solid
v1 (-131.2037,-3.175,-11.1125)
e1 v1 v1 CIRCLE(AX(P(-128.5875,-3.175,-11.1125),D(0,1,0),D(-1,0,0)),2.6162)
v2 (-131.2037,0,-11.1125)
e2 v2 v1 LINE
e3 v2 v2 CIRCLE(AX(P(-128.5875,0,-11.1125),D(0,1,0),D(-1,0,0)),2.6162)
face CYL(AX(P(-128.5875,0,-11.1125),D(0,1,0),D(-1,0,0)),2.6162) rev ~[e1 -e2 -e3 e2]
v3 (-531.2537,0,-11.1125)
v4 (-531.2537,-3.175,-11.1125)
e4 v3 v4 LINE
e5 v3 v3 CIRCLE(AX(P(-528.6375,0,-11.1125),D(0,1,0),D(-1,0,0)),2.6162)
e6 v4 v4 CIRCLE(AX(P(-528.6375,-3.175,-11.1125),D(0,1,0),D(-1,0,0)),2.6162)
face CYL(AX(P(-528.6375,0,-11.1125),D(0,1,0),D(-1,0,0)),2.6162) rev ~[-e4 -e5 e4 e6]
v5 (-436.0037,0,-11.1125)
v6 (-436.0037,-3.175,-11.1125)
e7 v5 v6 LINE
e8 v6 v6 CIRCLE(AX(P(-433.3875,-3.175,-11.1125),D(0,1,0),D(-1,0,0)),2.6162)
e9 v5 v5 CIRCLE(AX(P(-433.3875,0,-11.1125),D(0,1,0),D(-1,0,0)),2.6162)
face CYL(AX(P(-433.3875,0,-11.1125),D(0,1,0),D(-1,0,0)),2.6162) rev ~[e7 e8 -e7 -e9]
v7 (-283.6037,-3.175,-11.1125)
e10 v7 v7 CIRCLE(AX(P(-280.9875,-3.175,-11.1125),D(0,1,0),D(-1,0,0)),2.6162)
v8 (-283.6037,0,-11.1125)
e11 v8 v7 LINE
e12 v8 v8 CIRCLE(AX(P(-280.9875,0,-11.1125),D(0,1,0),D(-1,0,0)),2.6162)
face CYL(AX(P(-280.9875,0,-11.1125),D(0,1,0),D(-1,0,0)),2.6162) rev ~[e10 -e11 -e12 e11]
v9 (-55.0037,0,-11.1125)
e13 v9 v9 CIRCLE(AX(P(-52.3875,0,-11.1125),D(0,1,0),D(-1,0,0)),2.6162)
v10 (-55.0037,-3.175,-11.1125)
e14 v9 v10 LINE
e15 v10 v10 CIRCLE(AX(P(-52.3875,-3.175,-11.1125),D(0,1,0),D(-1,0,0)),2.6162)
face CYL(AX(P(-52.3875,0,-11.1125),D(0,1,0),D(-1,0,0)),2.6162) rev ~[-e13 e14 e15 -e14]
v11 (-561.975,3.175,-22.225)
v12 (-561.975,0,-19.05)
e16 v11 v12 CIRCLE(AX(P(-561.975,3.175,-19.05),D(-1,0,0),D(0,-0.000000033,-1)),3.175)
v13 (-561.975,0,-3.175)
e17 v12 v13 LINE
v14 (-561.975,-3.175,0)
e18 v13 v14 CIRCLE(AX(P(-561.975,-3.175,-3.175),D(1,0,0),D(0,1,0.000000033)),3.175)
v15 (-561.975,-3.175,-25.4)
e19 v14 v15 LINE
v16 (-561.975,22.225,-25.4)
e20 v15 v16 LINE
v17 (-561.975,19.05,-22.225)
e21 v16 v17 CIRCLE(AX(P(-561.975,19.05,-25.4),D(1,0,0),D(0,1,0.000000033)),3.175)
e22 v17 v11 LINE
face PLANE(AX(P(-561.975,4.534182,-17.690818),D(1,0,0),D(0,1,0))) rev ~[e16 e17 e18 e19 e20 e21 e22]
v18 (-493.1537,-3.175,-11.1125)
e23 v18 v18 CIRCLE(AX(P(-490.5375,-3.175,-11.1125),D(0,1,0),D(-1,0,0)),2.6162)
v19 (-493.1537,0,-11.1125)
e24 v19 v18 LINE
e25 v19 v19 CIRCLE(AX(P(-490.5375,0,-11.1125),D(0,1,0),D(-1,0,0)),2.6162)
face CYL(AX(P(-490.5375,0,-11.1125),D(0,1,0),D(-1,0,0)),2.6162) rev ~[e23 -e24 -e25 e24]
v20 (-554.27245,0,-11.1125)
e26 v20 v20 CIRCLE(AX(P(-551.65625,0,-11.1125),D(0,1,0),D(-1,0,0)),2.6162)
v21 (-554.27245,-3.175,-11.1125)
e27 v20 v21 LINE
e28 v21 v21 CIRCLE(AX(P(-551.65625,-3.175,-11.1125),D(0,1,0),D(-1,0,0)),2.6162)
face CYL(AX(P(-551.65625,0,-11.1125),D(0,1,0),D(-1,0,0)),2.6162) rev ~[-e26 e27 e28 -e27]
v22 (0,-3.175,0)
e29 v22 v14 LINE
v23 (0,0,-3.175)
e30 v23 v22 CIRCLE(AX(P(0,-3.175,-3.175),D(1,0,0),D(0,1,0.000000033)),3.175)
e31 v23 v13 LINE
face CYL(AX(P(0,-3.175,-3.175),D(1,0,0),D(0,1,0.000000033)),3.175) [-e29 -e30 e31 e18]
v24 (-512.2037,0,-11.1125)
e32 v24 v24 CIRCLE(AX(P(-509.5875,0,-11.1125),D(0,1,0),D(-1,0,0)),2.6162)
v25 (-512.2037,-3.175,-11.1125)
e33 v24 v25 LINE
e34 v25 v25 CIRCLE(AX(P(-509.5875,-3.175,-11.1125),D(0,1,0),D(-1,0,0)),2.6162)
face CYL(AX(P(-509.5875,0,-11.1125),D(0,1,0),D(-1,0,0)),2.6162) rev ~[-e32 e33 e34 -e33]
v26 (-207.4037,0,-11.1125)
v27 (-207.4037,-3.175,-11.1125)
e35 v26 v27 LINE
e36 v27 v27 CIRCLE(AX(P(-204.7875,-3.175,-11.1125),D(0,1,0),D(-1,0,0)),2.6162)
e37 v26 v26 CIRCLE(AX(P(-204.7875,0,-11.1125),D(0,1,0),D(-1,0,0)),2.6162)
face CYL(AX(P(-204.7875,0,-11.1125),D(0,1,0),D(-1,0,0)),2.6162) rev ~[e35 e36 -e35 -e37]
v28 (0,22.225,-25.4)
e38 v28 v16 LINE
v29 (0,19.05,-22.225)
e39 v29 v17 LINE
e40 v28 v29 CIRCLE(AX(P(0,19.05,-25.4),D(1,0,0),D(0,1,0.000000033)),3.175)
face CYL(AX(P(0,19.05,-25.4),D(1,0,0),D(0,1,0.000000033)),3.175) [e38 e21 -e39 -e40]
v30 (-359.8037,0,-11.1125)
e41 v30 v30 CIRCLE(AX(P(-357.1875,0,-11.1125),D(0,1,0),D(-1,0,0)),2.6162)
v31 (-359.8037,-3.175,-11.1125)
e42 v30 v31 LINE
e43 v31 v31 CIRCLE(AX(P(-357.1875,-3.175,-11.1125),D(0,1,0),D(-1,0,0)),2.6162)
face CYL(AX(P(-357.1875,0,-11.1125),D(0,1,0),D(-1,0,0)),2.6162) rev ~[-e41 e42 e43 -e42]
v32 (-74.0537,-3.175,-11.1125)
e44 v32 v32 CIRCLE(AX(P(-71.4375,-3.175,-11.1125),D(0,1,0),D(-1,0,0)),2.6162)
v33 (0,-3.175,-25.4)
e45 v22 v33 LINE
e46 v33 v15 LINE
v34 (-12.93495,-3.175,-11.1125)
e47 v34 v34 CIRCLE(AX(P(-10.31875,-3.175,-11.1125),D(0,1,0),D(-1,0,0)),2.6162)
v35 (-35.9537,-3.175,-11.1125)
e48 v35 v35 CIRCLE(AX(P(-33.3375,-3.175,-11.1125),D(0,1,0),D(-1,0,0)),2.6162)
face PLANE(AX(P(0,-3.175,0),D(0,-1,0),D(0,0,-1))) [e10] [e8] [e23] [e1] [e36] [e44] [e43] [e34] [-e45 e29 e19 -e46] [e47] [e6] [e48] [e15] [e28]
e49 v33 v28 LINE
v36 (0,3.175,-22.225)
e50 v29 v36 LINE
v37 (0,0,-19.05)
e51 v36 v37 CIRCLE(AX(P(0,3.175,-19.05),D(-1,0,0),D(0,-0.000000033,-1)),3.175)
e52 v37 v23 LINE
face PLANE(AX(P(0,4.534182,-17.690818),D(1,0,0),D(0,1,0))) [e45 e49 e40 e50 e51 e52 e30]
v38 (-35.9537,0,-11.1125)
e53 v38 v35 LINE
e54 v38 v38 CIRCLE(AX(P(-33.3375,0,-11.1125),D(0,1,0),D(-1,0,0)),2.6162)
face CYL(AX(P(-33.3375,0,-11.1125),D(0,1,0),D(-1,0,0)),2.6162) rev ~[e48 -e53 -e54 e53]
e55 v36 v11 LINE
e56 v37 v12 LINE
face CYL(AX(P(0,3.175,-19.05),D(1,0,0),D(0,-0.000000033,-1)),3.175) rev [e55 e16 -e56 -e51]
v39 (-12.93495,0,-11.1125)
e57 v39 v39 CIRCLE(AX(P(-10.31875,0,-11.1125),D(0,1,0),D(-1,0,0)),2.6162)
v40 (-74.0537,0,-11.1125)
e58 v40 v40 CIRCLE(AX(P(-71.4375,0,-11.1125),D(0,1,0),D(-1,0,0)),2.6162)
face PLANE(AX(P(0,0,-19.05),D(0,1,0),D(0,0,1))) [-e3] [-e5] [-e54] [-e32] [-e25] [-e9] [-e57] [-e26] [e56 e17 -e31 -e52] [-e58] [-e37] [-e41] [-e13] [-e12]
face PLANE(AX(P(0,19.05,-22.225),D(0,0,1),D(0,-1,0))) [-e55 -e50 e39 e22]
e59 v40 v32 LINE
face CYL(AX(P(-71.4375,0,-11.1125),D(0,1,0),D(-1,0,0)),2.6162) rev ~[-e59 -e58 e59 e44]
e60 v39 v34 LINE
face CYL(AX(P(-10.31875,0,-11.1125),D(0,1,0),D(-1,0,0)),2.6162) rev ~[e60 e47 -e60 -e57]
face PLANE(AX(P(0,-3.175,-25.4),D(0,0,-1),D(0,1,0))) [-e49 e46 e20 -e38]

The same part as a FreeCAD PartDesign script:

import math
import FreeCAD as App
import Part
import Sketcher
Q = App.Units.Quantity

doc = App.newDocument("Part")
params = doc.addObject("Spreadsheet::Sheet", "Params")
for row, (alias, value) in enumerate([
    ("sketch1_width", "1 in"),
    ("sketch1_radius", "0.125 in"),
    ("pad1_length", "22.125 in"),
    ("sketch2_diameter", "0.206 in"),
    ("pocket1_length", "1 in"),
], start=1):
    params.set(f"A{row}", alias)
    params.set(f"B{row}", "=" + value)
    params.setAlias(f"B{row}", alias)

body = doc.addObject("PartDesign::Body", "Body")

# Sketch on YZ plane
sketch1 = doc.addObject("Sketcher::SketchObject", "Sketch")
body.addObject(sketch1)
sketch1.AttachmentSupport = (doc.YZ_Plane, [""])
sketch1.MapMode = "FlatFace"
sketch1.addGeometry([
    Part.LineSegment(App.Vector(0, -19.05, 0), App.Vector(0, -3.175, 0)),  # 0
    Part.ArcOfCircle(Part.Circle(App.Vector(-3.175, -3.175, 0), App.Vector(0, 0, 1), 3.175), math.radians(0.000002), math.radians(89.999998)),  # 1
    Part.LineSegment(App.Vector(-3.175, 0, 0), App.Vector(-3.175, -25.4, 0)),  # 2
    Part.LineSegment(App.Vector(-3.175, -25.4, 0), App.Vector(22.225, -25.4, 0)),  # 3
    Part.ArcOfCircle(Part.Circle(App.Vector(19.05, -25.4, 0), App.Vector(0, 0, 1), 3.175), math.radians(0.000002), math.radians(89.999998)),  # 4
    Part.LineSegment(App.Vector(19.05, -22.225, 0), App.Vector(3.175, -22.225, 0)),  # 5
    Part.ArcOfCircle(Part.Circle(App.Vector(3.175, -19.05, 0), App.Vector(0, 0, 1), 3.175), math.radians(-179.999998), math.radians(-90.000002)),  # 6
], False)
sketch1.addConstraint([
    Sketcher.Constraint("Tangent", 0, 2, 1, 1),
    Sketcher.Constraint("Coincident", 1, 2, 2, 1),
    Sketcher.Constraint("Coincident", 2, 2, 3, 1),
    Sketcher.Constraint("Coincident", 3, 2, 4, 1),
    Sketcher.Constraint("Tangent", 4, 2, 5, 1),
    Sketcher.Constraint("Tangent", 5, 2, 6, 2),
    Sketcher.Constraint("Tangent", 6, 1, 0, 1),
    Sketcher.Constraint("Vertical", 0),
    Sketcher.Constraint("Vertical", 2),
    Sketcher.Constraint("Horizontal", 3),
    Sketcher.Constraint("Horizontal", 5),
    Sketcher.Constraint("Equal", 1, 4),
    Sketcher.Constraint("Equal", 4, 6),
    Sketcher.Constraint("PointOnObject", 0, 2, -2),
    Sketcher.Constraint("PointOnObject", 1, 2, -1),
    Sketcher.Constraint("Horizontal", 4, 3, 2, 2),
    Sketcher.Constraint("Equal", 5, 0),
    Sketcher.Constraint("Equal", 3, 2),
    Sketcher.Constraint("DistanceX", 3, 1, 3, 2, Q("1 in")),
    Sketcher.Constraint("Radius", 1, Q("0.125 in")),
])
sketch1.setExpression("Constraints[18]", "Params.sketch1_width")
sketch1.setExpression("Constraints[19]", "Params.sketch1_radius")
pad1 = doc.addObject("PartDesign::Pad", "Pad")
body.addObject(pad1)
pad1.Profile = sketch1
pad1.setExpression("Length", "Params.pad1_length")
pad1.Reversed = True

# Sketch on XZ plane
sketch2 = doc.addObject("Sketcher::SketchObject", "Sketch001")
body.addObject(sketch2)
sketch2.AttachmentSupport = (doc.XZ_Plane, [""])
sketch2.MapMode = "FlatFace"
sketch2.addGeometry([
    Part.Circle(App.Vector(-10.31875, -11.1125, 0), App.Vector(0, 0, 1), 2.6162),  # 0
    Part.Circle(App.Vector(-280.9875, -11.1125, 0), App.Vector(0, 0, 1), 2.6162),  # 1
    Part.Circle(App.Vector(-551.65625, -11.1125, 0), App.Vector(0, 0, 1), 2.6162),  # 2
    Part.Circle(App.Vector(-128.5875, -11.1125, 0), App.Vector(0, 0, 1), 2.6162),  # 3
    Part.Circle(App.Vector(-204.7875, -11.1125, 0), App.Vector(0, 0, 1), 2.6162),  # 4
    Part.Circle(App.Vector(-357.1875, -11.1125, 0), App.Vector(0, 0, 1), 2.6162),  # 5
    Part.Circle(App.Vector(-433.3875, -11.1125, 0), App.Vector(0, 0, 1), 2.6162),  # 6
    Part.Circle(App.Vector(-509.5875, -11.1125, 0), App.Vector(0, 0, 1), 2.6162),  # 7
    Part.Circle(App.Vector(-52.3875, -11.1125, 0), App.Vector(0, 0, 1), 2.6162),  # 8
    Part.Circle(App.Vector(-33.3375, -11.1125, 0), App.Vector(0, 0, 1), 2.6162),  # 9
    Part.Circle(App.Vector(-71.4375, -11.1125, 0), App.Vector(0, 0, 1), 2.6162),  # 10
    Part.Circle(App.Vector(-490.5375, -11.1125, 0), App.Vector(0, 0, 1), 2.6162),  # 11
    Part.Circle(App.Vector(-528.6375, -11.1125, 0), App.Vector(0, 0, 1), 2.6162),  # 12
], False)
sketch2.addConstraint([
    Sketcher.Constraint("Equal", 0, 1),
    Sketcher.Constraint("Equal", 1, 2),
    Sketcher.Constraint("Equal", 2, 3),
    Sketcher.Constraint("Equal", 3, 4),
    Sketcher.Constraint("Equal", 4, 5),
    Sketcher.Constraint("Equal", 5, 6),
    Sketcher.Constraint("Equal", 6, 7),
    Sketcher.Constraint("Equal", 7, 8),
    Sketcher.Constraint("Equal", 8, 9),
    Sketcher.Constraint("Equal", 9, 10),
    Sketcher.Constraint("Equal", 10, 11),
    Sketcher.Constraint("Equal", 11, 12),
    Sketcher.Constraint("Horizontal", 0, 3, 1, 3),
    Sketcher.Constraint("Horizontal", 1, 3, 2, 3),
    Sketcher.Constraint("Horizontal", 2, 3, 3, 3),
    Sketcher.Constraint("Horizontal", 3, 3, 4, 3),
    Sketcher.Constraint("Horizontal", 4, 3, 5, 3),
    Sketcher.Constraint("Horizontal", 5, 3, 6, 3),
    Sketcher.Constraint("Horizontal", 6, 3, 7, 3),
    Sketcher.Constraint("Horizontal", 7, 3, 8, 3),
    Sketcher.Constraint("Horizontal", 8, 3, 9, 3),
    Sketcher.Constraint("Horizontal", 9, 3, 10, 3),
    Sketcher.Constraint("Horizontal", 10, 3, 11, 3),
    Sketcher.Constraint("Horizontal", 11, 3, 12, 3),
    Sketcher.Constraint("Diameter", 0, Q("0.206 in")),
    Sketcher.Constraint("DistanceX", 1, 3, 3, 3, Q("6 in")),
    Sketcher.Constraint("DistanceX", 4, 3, 3, 3, Q("3 in")),
    Sketcher.Constraint("DistanceX", 5, 3, 1, 3, Q("3 in")),
    Sketcher.Constraint("DistanceX", 6, 3, 5, 3, Q("3 in")),
    Sketcher.Constraint("DistanceX", 7, 3, 6, 3, Q("3 in")),
    Sketcher.Constraint("DistanceX", 3, 3, 8, 3, Q("3 in")),
    Sketcher.Constraint("DistanceX", 10, 3, 9, 3, Q("1.5 in")),
    Sketcher.Constraint("DistanceX", 12, 3, 11, 3, Q("1.5 in")),
    Sketcher.Constraint("DistanceX", 8, 3, 9, 3, Q("0.75 in")),
    Sketcher.Constraint("DistanceX", 7, 3, 11, 3, Q("0.75 in")),
    Sketcher.Constraint("DistanceX", 0, 3, -1, 1, Q("0.40625 in")),
    Sketcher.Constraint("DistanceY", 0, 3, -1, 1, Q("0.4375 in")),
    Sketcher.Constraint("DistanceX", 1, 3, -1, 1, Q("11.0625 in")),
    Sketcher.Constraint("DistanceX", 2, 3, -1, 1, Q("21.71875 in")),
])
sketch2.setExpression("Constraints[24]", "Params.sketch2_diameter")
pocket1 = doc.addObject("PartDesign::Pocket", "Pocket")
body.addObject(pocket1)
pocket1.Profile = sketch2
pocket1.setExpression("Length", "Params.pocket1_length")
pocket1.Reversed = True

doc.recompute()
